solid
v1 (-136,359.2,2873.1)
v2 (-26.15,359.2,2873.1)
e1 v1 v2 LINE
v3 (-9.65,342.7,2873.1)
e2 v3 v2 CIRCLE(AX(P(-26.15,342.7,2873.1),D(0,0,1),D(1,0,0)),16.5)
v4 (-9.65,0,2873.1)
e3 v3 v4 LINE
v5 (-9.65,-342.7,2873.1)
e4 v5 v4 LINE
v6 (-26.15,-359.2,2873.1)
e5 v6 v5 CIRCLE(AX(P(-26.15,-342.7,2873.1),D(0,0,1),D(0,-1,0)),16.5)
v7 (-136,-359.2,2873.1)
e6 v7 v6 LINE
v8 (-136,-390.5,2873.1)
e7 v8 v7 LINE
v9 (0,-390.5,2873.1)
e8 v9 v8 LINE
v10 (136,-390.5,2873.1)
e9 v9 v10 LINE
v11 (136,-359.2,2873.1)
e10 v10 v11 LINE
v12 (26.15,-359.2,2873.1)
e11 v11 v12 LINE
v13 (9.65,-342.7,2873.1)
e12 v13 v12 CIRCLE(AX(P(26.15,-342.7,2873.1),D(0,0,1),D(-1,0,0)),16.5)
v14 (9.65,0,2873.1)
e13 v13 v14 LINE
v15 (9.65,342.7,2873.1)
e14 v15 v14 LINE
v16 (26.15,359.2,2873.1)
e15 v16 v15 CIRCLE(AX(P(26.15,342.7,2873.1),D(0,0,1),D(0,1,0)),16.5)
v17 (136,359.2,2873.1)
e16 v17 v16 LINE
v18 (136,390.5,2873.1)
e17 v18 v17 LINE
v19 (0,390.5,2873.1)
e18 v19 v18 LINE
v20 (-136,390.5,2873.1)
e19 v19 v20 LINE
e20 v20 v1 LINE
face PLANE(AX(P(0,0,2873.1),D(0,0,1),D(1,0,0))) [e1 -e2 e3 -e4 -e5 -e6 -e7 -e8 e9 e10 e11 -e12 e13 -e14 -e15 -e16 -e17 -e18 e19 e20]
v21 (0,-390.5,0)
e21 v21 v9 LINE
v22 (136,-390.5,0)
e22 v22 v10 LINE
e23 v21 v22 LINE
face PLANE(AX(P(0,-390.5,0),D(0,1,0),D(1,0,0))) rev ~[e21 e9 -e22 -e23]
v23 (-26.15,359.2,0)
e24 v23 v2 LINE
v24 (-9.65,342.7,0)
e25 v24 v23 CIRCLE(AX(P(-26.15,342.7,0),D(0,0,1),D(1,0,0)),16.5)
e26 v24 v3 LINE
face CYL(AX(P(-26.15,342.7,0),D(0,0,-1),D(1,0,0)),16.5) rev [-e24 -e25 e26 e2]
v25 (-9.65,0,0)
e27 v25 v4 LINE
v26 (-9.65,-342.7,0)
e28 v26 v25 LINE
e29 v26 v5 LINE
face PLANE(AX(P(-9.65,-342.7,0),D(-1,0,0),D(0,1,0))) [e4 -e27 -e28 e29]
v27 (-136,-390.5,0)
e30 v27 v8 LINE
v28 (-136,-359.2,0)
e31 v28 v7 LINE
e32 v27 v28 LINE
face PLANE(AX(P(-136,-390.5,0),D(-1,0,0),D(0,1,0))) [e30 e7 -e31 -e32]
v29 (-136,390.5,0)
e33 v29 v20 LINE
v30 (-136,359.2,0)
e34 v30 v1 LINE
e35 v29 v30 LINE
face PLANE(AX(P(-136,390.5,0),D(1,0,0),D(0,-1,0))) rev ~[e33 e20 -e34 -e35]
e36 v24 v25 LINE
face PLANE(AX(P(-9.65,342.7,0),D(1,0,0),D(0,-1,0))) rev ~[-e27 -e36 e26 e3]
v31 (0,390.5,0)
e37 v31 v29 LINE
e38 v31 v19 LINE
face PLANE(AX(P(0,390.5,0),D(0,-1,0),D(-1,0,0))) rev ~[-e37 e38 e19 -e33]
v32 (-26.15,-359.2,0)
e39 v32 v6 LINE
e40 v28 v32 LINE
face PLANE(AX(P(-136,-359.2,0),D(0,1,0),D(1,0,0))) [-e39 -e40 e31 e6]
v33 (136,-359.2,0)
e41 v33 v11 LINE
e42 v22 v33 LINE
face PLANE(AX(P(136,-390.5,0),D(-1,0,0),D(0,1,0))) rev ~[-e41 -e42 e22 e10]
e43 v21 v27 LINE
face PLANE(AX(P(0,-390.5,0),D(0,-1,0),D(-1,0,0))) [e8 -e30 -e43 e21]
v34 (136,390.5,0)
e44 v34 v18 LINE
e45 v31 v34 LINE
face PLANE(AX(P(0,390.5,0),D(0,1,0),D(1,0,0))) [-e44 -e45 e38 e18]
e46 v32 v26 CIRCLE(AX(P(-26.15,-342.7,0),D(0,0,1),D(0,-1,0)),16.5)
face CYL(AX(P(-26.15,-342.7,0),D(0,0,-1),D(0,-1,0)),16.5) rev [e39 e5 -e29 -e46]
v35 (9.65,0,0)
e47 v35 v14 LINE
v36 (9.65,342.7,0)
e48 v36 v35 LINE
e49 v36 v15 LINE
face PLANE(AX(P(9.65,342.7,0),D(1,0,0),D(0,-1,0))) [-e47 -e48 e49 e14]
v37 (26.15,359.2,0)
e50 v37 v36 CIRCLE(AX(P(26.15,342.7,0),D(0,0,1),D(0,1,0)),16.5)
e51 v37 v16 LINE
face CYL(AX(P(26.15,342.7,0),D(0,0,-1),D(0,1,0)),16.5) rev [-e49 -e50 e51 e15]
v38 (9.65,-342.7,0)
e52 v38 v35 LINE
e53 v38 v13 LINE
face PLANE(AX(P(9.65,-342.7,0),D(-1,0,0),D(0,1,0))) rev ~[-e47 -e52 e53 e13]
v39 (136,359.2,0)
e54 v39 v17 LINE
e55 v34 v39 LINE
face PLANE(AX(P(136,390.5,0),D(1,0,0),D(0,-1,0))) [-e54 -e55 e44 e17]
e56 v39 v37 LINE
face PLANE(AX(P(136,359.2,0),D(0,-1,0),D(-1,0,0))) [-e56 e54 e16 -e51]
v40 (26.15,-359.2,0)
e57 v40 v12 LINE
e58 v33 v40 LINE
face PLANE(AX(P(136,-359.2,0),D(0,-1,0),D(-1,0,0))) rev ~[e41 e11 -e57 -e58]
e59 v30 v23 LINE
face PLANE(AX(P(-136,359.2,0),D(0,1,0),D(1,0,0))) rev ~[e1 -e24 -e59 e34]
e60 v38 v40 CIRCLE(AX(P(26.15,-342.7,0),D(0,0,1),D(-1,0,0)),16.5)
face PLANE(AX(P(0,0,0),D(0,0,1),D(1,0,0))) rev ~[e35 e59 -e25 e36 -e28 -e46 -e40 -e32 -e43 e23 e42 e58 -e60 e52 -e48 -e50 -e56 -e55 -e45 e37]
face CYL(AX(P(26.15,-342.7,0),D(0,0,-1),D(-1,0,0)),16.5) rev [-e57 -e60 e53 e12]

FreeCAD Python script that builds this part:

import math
import FreeCAD as App
import Part
import Sketcher

doc = App.newDocument("Part")
body = doc.addObject("PartDesign::Body", "Body")

# Sketch on XY plane
sketch1 = doc.addObject("Sketcher::SketchObject", "Sketch")
body.addObject(sketch1)
sketch1.AttachmentSupport = (doc.XY_Plane, [""])
sketch1.MapMode = "FlatFace"
sketch1.addGeometry(Part.LineSegment(App.Vector(-136, -359, 0), App.Vector(-136, -390, 0)), False)
sketch1.addGeometry(Part.LineSegment(App.Vector(-136, -390, 0), App.Vector(136, -390, 0)), False)
sketch1.addGeometry(Part.LineSegment(App.Vector(136, -390, 0), App.Vector(136, -359, 0)), False)
sketch1.addGeometry(Part.LineSegment(App.Vector(136, -359, 0), App.Vector(26, -359, 0)), False)
sketch1.addGeometry(Part.ArcOfCircle(Part.Circle(App.Vector(26, -343, 0), App.Vector(0, 0, 1), 16), math.radians(180), math.radians(270)), False)
sketch1.addGeometry(Part.LineSegment(App.Vector(10, -343, 0), App.Vector(10, 343, 0)), False)
sketch1.addGeometry(Part.ArcOfCircle(Part.Circle(App.Vector(26, 343, 0), App.Vector(0, 0, 1), 16), math.radians(90), math.radians(180)), False)
sketch1.addGeometry(Part.LineSegment(App.Vector(26, 359, 0), App.Vector(136, 359, 0)), False)
sketch1.addGeometry(Part.LineSegment(App.Vector(136, 359, 0), App.Vector(136, 390, 0)), False)
sketch1.addGeometry(Part.LineSegment(App.Vector(136, 390, 0), App.Vector(-136, 390, 0)), False)
sketch1.addGeometry(Part.LineSegment(App.Vector(-136, 390, 0), App.Vector(-136, 359, 0)), False)
sketch1.addGeometry(Part.LineSegment(App.Vector(-136, 359, 0), App.Vector(-26, 359, 0)), False)
sketch1.addGeometry(Part.ArcOfCircle(Part.Circle(App.Vector(-26, 343, 0), App.Vector(0, 0, 1), 16), math.radians(0), math.radians(90)), False)
sketch1.addGeometry(Part.LineSegment(App.Vector(-10, 343, 0), App.Vector(-10, -343, 0)), False)
sketch1.addGeometry(Part.ArcOfCircle(Part.Circle(App.Vector(-26, -343, 0), App.Vector(0, 0, 1), 16), math.radians(-90), math.radians(0)), False)
sketch1.addGeometry(Part.LineSegment(App.Vector(-26, -359, 0), App.Vector(-136, -359, 0)), False)
sketch1.addConstraint(Sketcher.Constraint("Coincident", 0, 2, 1, 1))
sketch1.addConstraint(Sketcher.Constraint("Coincident", 1, 2, 2, 1))
sketch1.addConstraint(Sketcher.Constraint("Coincident", 2, 2, 3, 1))
sketch1.addConstraint(Sketcher.Constraint("Tangent", 3, 2, 4, 2))
sketch1.addConstraint(Sketcher.Constraint("Tangent", 4, 1, 5, 1))
sketch1.addConstraint(Sketcher.Constraint("Tangent", 5, 2, 6, 2))
sketch1.addConstraint(Sketcher.Constraint("Tangent", 6, 1, 7, 1))
sketch1.addConstraint(Sketcher.Constraint("Coincident", 7, 2, 8, 1))
sketch1.addConstraint(Sketcher.Constraint("Coincident", 8, 2, 9, 1))
sketch1.addConstraint(Sketcher.Constraint("Coincident", 9, 2, 10, 1))
sketch1.addConstraint(Sketcher.Constraint("Coincident", 10, 2, 11, 1))
sketch1.addConstraint(Sketcher.Constraint("Tangent", 11, 2, 12, 2))
sketch1.addConstraint(Sketcher.Constraint("Tangent", 12, 1, 13, 1))
sketch1.addConstraint(Sketcher.Constraint("Tangent", 13, 2, 14, 2))
sketch1.addConstraint(Sketcher.Constraint("Tangent", 14, 1, 15, 1))
sketch1.addConstraint(Sketcher.Constraint("Coincident", 15, 2, 0, 1))
sketch1.addConstraint(Sketcher.Constraint("Vertical", 0))
sketch1.addConstraint(Sketcher.Constraint("Horizontal", 1))
sketch1.addConstraint(Sketcher.Constraint("Vertical", 2))
sketch1.addConstraint(Sketcher.Constraint("Horizontal", 3))
sketch1.addConstraint(Sketcher.Constraint("Vertical", 5))
sketch1.addConstraint(Sketcher.Constraint("Horizontal", 7))
sketch1.addConstraint(Sketcher.Constraint("Vertical", 8))
sketch1.addConstraint(Sketcher.Constraint("Horizontal", 9))
sketch1.addConstraint(Sketcher.Constraint("Vertical", 10))
sketch1.addConstraint(Sketcher.Constraint("Horizontal", 11))
sketch1.addConstraint(Sketcher.Constraint("Vertical", 13))
sketch1.addConstraint(Sketcher.Constraint("Horizontal", 15))
sketch1.addConstraint(Sketcher.Constraint("Equal", 4, 6))
sketch1.addConstraint(Sketcher.Constraint("Equal", 6, 12))
sketch1.addConstraint(Sketcher.Constraint("Equal", 12, 14))
sketch1.addConstraint(Sketcher.Constraint("Symmetric", 4, 3, 12, 3, -1, 1))
sketch1.addConstraint(Sketcher.Constraint("Symmetric", 0, 2, 8, 2, -1, 1))
sketch1.addConstraint(Sketcher.Constraint("Symmetric", 7, 2, 10, 2, -2))
sketch1.addConstraint(Sketcher.Constraint("Symmetric", 2, 2, 15, 2, -2))
sketch1.addConstraint(Sketcher.Constraint("Radius", 4, 16.5))
sketch1.addConstraint(Sketcher.Constraint("DistanceY", 0, 2, 0, 1, 31.3))
sketch1.addConstraint(Sketcher.Constraint("DistanceX", 0, 2, -1, 1, 136.0))
sketch1.addConstraint(Sketcher.Constraint("DistanceY", 0, 2, -1, 1, 390.5))
sketch1.addConstraint(Sketcher.Constraint("DistanceX", -1, 1, 4, 1, 9.65))
pad1 = doc.addObject("PartDesign::Pad", "Pad")
body.addObject(pad1)
pad1.Profile = sketch1
pad1.Length = 2873.1

doc.recompute()
